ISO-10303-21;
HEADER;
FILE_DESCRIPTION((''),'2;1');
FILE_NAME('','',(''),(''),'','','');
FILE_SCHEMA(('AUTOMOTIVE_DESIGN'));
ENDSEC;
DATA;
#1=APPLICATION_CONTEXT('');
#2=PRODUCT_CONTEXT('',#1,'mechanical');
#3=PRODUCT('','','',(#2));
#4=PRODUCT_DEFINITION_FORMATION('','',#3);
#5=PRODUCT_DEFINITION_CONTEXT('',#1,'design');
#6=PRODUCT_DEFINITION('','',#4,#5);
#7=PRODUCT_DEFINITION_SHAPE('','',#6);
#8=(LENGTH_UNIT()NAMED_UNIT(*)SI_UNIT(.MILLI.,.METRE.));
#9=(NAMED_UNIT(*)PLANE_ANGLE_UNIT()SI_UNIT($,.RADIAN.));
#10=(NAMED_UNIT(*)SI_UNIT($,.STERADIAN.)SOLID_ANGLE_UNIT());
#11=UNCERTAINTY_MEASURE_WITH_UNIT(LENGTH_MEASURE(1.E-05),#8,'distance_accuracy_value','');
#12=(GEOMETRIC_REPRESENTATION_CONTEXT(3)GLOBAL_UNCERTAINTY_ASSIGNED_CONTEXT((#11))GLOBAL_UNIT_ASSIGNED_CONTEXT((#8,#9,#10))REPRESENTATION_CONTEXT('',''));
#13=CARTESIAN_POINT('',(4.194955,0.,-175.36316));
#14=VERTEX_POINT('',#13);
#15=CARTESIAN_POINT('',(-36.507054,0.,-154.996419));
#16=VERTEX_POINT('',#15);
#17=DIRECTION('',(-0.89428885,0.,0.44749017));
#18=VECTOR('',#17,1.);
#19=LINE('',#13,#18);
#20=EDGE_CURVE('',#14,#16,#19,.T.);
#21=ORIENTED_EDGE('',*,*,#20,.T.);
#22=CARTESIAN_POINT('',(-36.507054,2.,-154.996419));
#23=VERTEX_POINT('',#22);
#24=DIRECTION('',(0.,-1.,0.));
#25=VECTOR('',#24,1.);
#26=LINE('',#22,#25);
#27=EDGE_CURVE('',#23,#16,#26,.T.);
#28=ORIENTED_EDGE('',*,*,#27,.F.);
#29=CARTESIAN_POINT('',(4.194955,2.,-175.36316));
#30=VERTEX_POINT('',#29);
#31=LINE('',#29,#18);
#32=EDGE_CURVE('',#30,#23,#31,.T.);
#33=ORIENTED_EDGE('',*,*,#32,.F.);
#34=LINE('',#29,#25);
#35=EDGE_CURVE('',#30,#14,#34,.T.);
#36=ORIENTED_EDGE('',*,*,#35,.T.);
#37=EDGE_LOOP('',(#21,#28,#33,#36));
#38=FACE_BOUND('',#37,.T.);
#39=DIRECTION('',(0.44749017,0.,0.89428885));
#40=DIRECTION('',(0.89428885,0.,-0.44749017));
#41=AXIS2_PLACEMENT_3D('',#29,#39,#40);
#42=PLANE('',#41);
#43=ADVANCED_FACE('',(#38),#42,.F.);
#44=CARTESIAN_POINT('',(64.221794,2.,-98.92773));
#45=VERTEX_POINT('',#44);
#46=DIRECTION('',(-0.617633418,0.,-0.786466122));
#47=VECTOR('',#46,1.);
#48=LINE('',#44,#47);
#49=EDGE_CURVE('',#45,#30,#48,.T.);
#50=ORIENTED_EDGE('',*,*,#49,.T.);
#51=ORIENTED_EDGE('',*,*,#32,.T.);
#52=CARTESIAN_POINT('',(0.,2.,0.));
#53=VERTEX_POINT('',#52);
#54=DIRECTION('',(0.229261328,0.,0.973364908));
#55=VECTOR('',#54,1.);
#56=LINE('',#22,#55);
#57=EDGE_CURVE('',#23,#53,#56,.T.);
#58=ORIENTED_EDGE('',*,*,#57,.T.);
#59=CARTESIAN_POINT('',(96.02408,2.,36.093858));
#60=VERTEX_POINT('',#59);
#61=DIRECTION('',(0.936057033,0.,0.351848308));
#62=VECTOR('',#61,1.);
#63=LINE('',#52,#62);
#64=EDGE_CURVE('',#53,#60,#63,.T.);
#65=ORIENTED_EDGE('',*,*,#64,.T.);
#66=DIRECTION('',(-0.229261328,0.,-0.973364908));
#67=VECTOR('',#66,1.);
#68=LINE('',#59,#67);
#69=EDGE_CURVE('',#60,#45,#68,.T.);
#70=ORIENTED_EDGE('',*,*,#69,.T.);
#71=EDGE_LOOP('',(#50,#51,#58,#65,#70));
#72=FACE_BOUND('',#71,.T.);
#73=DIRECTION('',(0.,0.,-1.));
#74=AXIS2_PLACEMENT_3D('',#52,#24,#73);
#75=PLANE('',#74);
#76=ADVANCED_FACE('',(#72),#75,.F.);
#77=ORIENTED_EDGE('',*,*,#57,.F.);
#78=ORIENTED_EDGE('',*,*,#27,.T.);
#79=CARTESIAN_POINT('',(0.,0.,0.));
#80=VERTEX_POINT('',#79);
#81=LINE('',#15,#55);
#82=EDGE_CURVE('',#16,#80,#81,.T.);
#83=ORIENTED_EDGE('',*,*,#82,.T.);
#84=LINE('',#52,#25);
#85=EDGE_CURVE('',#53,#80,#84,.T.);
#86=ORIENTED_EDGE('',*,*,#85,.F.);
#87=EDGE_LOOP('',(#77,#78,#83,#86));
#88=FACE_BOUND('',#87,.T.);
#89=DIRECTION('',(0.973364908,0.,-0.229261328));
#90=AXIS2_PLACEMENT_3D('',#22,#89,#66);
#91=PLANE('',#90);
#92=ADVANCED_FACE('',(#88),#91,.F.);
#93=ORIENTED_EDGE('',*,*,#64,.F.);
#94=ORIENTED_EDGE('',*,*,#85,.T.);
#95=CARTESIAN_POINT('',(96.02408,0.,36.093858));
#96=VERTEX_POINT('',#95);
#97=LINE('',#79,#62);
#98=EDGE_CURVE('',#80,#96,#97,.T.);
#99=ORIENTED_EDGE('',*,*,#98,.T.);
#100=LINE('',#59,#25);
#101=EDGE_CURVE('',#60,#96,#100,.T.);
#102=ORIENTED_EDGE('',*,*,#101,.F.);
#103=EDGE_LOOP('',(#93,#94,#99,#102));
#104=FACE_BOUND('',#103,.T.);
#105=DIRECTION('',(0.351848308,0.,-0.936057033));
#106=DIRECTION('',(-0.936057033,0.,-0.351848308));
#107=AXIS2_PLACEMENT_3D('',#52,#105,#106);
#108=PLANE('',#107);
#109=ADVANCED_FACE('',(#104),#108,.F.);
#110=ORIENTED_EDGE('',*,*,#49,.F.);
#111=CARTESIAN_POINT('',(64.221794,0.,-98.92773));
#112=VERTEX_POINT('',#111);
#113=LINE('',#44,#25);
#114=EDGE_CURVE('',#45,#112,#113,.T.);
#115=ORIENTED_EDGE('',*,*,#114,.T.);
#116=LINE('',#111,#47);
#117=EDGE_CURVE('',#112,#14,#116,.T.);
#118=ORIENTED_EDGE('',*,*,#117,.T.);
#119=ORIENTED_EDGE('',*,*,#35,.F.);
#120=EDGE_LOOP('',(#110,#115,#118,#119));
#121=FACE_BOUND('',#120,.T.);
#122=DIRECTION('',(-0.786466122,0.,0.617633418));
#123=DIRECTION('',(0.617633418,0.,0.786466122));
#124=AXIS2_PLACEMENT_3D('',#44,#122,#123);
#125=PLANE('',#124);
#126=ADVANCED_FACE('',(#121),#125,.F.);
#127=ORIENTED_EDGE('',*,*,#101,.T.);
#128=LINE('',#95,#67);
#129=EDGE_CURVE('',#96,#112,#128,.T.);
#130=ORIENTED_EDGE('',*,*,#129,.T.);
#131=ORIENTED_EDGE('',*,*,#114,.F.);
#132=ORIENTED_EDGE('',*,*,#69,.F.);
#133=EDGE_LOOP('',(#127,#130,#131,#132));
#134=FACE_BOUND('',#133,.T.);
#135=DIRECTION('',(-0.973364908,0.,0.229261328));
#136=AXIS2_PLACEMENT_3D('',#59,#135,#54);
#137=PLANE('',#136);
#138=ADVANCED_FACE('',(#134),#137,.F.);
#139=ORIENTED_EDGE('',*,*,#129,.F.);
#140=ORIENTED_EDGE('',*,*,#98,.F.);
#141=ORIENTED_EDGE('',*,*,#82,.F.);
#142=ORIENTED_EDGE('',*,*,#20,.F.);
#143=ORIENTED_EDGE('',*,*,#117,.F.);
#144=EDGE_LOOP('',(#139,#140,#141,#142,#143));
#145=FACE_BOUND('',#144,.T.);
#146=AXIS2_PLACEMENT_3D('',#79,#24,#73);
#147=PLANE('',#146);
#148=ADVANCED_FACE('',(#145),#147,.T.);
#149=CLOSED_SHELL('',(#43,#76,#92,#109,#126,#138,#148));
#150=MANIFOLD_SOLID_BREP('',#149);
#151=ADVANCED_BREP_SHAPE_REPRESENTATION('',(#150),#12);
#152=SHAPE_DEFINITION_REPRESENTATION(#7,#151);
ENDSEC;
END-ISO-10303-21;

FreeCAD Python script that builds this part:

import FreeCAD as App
import Part
import Sketcher

V = App.Vector
Q = App.Units.Quantity

doc = App.newDocument("Part")
body = doc.addObject("PartDesign::Body", "Body")

# Sketch on XZ plane
sketch1 = doc.addObject("Sketcher::SketchObject", "Sketch")
body.addObject(sketch1)
sketch1.AttachmentSupport = (doc.XZ_Plane, [""])
sketch1.MapMode = "FlatFace"
sketch1.addGeometry([
    Part.LineSegment(V(-37, -155, 0), V(0, 0, 0)),  # 0
    Part.LineSegment(V(0, 0, 0), V(96, 36, 0)),  # 1
    Part.LineSegment(V(96, 36, 0), V(64, -99, 0)),  # 2
    Part.LineSegment(V(64, -99, 0), V(4, -175, 0)),  # 3
    Part.LineSegment(V(4, -175, 0), V(-37, -155, 0)),  # 4
], False)
sketch1.addConstraint([
    Sketcher.Constraint("Coincident", 0, 2, 1, 1),
    Sketcher.Constraint("Coincident", 1, 2, 2, 1),
    Sketcher.Constraint("Coincident", 2, 2, 3, 1),
    Sketcher.Constraint("Coincident", 3, 2, 4, 1),
    Sketcher.Constraint("Coincident", 4, 2, 0, 1),
    Sketcher.Constraint("Coincident", 0, 2, -1, 1),
    Sketcher.Constraint("Parallel", 0, 2),
    Sketcher.Constraint("Distance", 0, Q("159.237731 mm")),
    Sketcher.Constraint("Distance", 1, Q("102.583578 mm")),
    Sketcher.Constraint("Distance", 2, Q("138.71631 mm")),
    Sketcher.Constraint("Distance", 3, Q("97.188458 mm")),
    Sketcher.Constraint("Distance", 4, Q("45.513268 mm")),
    Sketcher.Constraint("DistanceX", -1, 1, 1, 2, Q("96.02408 mm")),
    Sketcher.Constraint("DistanceY", 2, 2, -1, 1, Q("98.92773 mm")),
])
pad1 = doc.addObject("PartDesign::Pad", "Pad")
body.addObject(pad1)
pad1.Profile = sketch1
pad1.Length = 2
pad1.Reversed = True

doc.recompute()
